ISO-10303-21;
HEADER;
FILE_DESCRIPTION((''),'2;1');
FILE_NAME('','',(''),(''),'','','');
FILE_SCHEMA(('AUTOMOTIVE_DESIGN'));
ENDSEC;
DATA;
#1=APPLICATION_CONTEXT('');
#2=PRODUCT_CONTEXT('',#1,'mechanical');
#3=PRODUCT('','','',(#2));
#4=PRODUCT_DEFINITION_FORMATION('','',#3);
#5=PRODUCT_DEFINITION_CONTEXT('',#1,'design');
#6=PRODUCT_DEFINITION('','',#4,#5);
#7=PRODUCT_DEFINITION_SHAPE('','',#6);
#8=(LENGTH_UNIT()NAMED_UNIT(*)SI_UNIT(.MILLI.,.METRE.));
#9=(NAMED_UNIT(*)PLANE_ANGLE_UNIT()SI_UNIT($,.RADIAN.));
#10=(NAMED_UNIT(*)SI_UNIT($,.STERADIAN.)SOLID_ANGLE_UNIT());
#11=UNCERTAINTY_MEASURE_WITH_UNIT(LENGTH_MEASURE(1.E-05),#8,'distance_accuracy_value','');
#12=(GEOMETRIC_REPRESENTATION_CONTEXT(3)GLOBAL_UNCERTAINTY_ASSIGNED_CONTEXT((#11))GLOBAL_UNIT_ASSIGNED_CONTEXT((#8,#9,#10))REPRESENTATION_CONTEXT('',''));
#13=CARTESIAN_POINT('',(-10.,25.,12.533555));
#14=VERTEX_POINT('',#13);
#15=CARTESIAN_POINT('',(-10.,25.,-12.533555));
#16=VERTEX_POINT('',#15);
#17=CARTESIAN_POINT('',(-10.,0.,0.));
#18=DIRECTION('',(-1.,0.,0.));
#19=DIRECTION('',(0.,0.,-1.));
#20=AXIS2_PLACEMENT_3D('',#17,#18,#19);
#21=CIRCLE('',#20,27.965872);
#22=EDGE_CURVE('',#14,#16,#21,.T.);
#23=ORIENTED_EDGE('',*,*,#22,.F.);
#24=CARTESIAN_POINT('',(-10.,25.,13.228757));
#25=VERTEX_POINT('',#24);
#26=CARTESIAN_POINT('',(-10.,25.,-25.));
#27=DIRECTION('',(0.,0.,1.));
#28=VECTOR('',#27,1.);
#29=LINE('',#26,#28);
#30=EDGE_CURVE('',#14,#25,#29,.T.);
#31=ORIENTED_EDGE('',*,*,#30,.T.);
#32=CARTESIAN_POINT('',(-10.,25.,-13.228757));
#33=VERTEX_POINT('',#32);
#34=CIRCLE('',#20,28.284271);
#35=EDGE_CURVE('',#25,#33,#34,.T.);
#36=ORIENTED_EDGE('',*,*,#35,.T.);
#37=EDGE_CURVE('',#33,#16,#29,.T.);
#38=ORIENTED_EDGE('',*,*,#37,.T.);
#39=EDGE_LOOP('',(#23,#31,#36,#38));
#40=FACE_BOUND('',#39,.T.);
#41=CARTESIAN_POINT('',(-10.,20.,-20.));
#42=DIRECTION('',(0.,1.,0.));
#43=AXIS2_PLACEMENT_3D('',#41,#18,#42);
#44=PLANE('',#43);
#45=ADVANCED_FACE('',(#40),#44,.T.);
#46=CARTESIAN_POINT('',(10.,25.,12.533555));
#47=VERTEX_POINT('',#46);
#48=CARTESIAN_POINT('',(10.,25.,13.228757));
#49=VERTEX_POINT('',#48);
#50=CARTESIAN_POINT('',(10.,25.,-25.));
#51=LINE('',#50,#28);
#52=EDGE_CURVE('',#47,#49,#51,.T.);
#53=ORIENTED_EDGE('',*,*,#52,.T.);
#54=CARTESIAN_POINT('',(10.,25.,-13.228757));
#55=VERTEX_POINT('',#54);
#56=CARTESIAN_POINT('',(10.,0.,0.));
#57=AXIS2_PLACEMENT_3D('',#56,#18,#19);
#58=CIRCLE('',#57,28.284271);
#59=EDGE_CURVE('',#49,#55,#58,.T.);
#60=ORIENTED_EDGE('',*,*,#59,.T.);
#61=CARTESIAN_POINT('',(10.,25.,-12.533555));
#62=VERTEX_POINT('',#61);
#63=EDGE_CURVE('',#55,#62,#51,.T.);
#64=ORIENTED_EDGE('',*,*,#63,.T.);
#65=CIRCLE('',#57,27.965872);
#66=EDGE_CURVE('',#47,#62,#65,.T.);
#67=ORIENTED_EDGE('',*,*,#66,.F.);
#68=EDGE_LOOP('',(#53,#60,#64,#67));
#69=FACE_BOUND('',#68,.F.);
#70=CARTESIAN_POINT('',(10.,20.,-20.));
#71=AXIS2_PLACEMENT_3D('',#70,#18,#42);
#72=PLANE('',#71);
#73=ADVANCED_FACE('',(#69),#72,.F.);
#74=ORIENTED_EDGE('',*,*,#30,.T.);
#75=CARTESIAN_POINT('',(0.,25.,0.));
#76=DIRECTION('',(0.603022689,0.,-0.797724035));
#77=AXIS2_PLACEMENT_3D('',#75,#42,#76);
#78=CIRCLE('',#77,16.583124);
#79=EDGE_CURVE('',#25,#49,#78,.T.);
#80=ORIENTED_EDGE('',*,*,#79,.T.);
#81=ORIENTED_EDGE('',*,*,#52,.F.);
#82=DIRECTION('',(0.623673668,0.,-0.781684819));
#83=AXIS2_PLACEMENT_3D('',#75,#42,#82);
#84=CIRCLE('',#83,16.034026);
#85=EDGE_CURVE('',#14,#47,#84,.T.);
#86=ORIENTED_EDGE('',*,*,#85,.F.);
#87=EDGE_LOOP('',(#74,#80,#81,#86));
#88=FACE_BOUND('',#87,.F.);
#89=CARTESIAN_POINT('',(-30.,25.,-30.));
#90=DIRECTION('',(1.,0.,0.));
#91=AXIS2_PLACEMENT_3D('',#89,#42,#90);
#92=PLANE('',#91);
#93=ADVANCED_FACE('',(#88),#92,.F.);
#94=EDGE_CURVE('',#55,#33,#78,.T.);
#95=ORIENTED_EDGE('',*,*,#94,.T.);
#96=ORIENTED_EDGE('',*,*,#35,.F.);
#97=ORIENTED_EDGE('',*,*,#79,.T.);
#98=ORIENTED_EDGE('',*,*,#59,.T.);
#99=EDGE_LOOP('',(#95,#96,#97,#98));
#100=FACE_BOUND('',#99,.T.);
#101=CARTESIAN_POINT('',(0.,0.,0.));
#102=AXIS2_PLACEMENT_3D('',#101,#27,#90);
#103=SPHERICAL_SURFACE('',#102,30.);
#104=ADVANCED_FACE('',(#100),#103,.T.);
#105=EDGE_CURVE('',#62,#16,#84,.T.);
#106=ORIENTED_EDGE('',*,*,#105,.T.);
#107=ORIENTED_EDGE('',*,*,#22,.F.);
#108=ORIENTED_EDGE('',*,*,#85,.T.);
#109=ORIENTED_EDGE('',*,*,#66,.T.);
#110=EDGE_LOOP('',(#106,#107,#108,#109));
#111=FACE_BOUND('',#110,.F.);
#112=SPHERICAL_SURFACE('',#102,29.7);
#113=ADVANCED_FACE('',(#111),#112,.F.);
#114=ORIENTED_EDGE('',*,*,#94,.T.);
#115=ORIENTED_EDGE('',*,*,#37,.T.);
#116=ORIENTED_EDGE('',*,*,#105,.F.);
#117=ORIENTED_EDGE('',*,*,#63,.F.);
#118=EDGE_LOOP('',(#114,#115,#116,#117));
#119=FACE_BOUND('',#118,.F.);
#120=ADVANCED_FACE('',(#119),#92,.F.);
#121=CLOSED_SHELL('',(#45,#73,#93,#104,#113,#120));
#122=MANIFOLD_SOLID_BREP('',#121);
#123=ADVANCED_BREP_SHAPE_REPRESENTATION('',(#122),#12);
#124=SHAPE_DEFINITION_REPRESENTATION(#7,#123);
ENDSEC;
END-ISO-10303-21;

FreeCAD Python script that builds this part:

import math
import FreeCAD as App
import Part
import Sketcher
from FreeCAD import Vector
Q = App.Units.Quantity

doc = App.newDocument("Part")
body = doc.addObject("PartDesign::Body", "Body")

# Sketch on XY plane
sketch1 = body.newObject("Sketcher::SketchObject", "Sketch")
sketch1.AttachmentSupport = (doc.getObject("XY_Plane"), [""])
sketch1.MapMode = "FlatFace"
sketch1.AttachmentOffset = App.Placement(Vector(0, 0, -20), App.Rotation())
sketch1.addGeometry([
    Part.LineSegment(Vector(-20, 30, 0), Vector(-20, 20, 0)),
    Part.LineSegment(Vector(-20, 20, 0), Vector(-10, 20, 0)),
    Part.LineSegment(Vector(-10, 20, 0), Vector(-10, 30, 0)),
    Part.LineSegment(Vector(-10, 30, 0), Vector(-20, 30, 0)),
], False)
sketch1.addConstraint([
    Sketcher.Constraint("Coincident", 0, 2, 1, 1),
    Sketcher.Constraint("Coincident", 1, 2, 2, 1),
    Sketcher.Constraint("Coincident", 2, 2, 3, 1),
    Sketcher.Constraint("Coincident", 3, 2, 0, 1),
    Sketcher.Constraint("Vertical", 0),
    Sketcher.Constraint("Horizontal", 1),
    Sketcher.Constraint("Vertical", 2),
    Sketcher.Constraint("Horizontal", 3),
    Sketcher.Constraint("Equal", 3, 0),
    Sketcher.Constraint("DistanceX", 1, 1, 1, 2, Q("10 mm")),
    Sketcher.Constraint("DistanceX", 0, 2, -1, 1, Q("20 mm")),
    Sketcher.Constraint("DistanceY", -1, 1, 0, 2, Q("20 mm")),
])
pad1 = body.newObject("PartDesign::Pad", "Pad")
pad1.Profile = sketch1
pad1.Length = 40
body2 = doc.addObject("PartDesign::Body", "Body001")

# Sketch on XY plane
sketch2 = body2.newObject("Sketcher::SketchObject", "Sketch001")
sketch2.AttachmentSupport = (doc.getObject("XY_Plane001"), [""])
sketch2.MapMode = "FlatFace"
sketch2.AttachmentOffset = App.Placement(Vector(0, 0, -20), App.Rotation())
sketch2.addGeometry([
    Part.LineSegment(Vector(10, 30, 0), Vector(10, 20, 0)),
    Part.LineSegment(Vector(10, 20, 0), Vector(20, 20, 0)),
    Part.LineSegment(Vector(20, 20, 0), Vector(20, 30, 0)),
    Part.LineSegment(Vector(20, 30, 0), Vector(10, 30, 0)),
], False)
sketch2.addConstraint([
    Sketcher.Constraint("Coincident", 0, 2, 1, 1),
    Sketcher.Constraint("Coincident", 1, 2, 2, 1),
    Sketcher.Constraint("Coincident", 2, 2, 3, 1),
    Sketcher.Constraint("Coincident", 3, 2, 0, 1),
    Sketcher.Constraint("Vertical", 0),
    Sketcher.Constraint("Horizontal", 1),
    Sketcher.Constraint("Vertical", 2),
    Sketcher.Constraint("Horizontal", 3),
    Sketcher.Constraint("Equal", 3, 0),
    Sketcher.Constraint("DistanceX", 1, 1, 1, 2, Q("10 mm")),
    Sketcher.Constraint("DistanceX", -1, 1, 0, 2, Q("10 mm")),
    Sketcher.Constraint("DistanceY", -1, 1, 0, 2, Q("20 mm")),
])
pad2 = body2.newObject("PartDesign::Pad", "Pad001")
pad2.Profile = sketch2
pad2.Length = 40
body3 = doc.addObject("PartDesign::Body", "Body002")

# Sketch on XY plane
sketch3 = body3.newObject("Sketcher::SketchObject", "Sketch002")
sketch3.AttachmentSupport = (doc.getObject("XY_Plane002"), [""])
sketch3.MapMode = "FlatFace"
sketch3.AttachmentOffset = App.Placement(Vector(0, 0, -30), App.Rotation())
sketch3.addGeometry([
    Part.LineSegment(Vector(-30, 25, 0), Vector(-30, -15, 0)),
    Part.LineSegment(Vector(-30, -15, 0), Vector(30, -15, 0)),
    Part.LineSegment(Vector(30, -15, 0), Vector(30, 25, 0)),
    Part.LineSegment(Vector(30, 25, 0), Vector(-30, 25, 0)),
], False)
sketch3.addConstraint([
    Sketcher.Constraint("Coincident", 0, 2, 1, 1),
    Sketcher.Constraint("Coincident", 1, 2, 2, 1),
    Sketcher.Constraint("Coincident", 2, 2, 3, 1),
    Sketcher.Constraint("Coincident", 3, 2, 0, 1),
    Sketcher.Constraint("Vertical", 0),
    Sketcher.Constraint("Horizontal", 1),
    Sketcher.Constraint("Vertical", 2),
    Sketcher.Constraint("Horizontal", 3),
    Sketcher.Constraint("DistanceX", 1, 1, 1, 2, Q("60 mm")),
    Sketcher.Constraint("DistanceY", 0, 2, 0, 1, Q("40 mm")),
    Sketcher.Constraint("DistanceX", 0, 2, -1, 1, Q("30 mm")),
    Sketcher.Constraint("DistanceY", 0, 2, -1, 1, Q("15 mm")),
])
pad3 = body3.newObject("PartDesign::Pad", "Pad002")
pad3.Profile = sketch3
pad3.Length = 60
body4 = doc.addObject("PartDesign::Body", "Body003")

# Sketch on XZ plane
sketch4 = body4.newObject("Sketcher::SketchObject", "Sketch003")
sketch4.AttachmentSupport = (doc.getObject("XZ_Plane003"), [""])
sketch4.MapMode = "FlatFace"
sketch4.addGeometry([
    Part.ArcOfCircle(Part.Circle(Vector(0, 0, 0), Vector(0, 0, 1), 30), math.radians(-90), math.radians(90)),
    Part.LineSegment(Vector(0, 30, 0), Vector(0, -30, 0)),
], False)
sketch4.addConstraint([
    Sketcher.Constraint("Coincident", 0, 1, 1, 2),
    Sketcher.Constraint("Coincident", 1, 1, 0, 2),
    Sketcher.Constraint("Vertical", 1),
    Sketcher.Constraint("Coincident", 0, 3, -1, 1),
    Sketcher.Constraint("PointOnObject", 0, 1, -2),
    Sketcher.Constraint("Radius", 0, Q("29.7 mm")),
])
revolution = body4.newObject("PartDesign::Revolution", "Revolution")
revolution.Profile = sketch4
revolution.ReferenceAxis = (sketch4, ["V_Axis"])
revolution.Angle = 180
body5 = doc.addObject("PartDesign::Body", "Body004")

# Sketch on XZ plane
sketch5 = body5.newObject("Sketcher::SketchObject", "Sketch004")
sketch5.AttachmentSupport = (doc.getObject("XZ_Plane004"), [""])
sketch5.MapMode = "FlatFace"
sketch5.addGeometry([
    Part.ArcOfCircle(Part.Circle(Vector(0, 0, 0), Vector(0, 0, 1), 30), math.radians(-90), math.radians(90)),
    Part.LineSegment(Vector(0, 30, 0), Vector(0, -30, 0)),
], False)
sketch5.addConstraint([
    Sketcher.Constraint("Coincident", 0, 1, 1, 2),
    Sketcher.Constraint("Coincident", 1, 1, 0, 2),
    Sketcher.Constraint("Vertical", 1),
    Sketcher.Constraint("Coincident", 0, 3, -1, 1),
    Sketcher.Constraint("PointOnObject", 0, 1, -2),
    Sketcher.Constraint("Radius", 0, Q("30 mm")),
])
revolution2 = body5.newObject("PartDesign::Revolution", "Revolution001")
revolution2.Profile = sketch5
revolution2.ReferenceAxis = (sketch5, ["V_Axis"])
revolution2.Angle = 180
doc.recompute()

boolean = body5.newObject("PartDesign::Boolean", "Boolean")
boolean.Type = "Cut"
boolean.addObjects([body4])
doc.recompute()

boolean2 = body5.newObject("PartDesign::Boolean", "Boolean001")
boolean2.Type = "Cut"
boolean2.addObjects([body3])
doc.recompute()

boolean3 = body5.newObject("PartDesign::Boolean", "Boolean002")
boolean3.Type = "Cut"
boolean3.addObjects([body2])
doc.recompute()

boolean4 = body5.newObject("PartDesign::Boolean", "Boolean003")
boolean4.Type = "Cut"
boolean4.addObjects([body])

doc.recompute()
